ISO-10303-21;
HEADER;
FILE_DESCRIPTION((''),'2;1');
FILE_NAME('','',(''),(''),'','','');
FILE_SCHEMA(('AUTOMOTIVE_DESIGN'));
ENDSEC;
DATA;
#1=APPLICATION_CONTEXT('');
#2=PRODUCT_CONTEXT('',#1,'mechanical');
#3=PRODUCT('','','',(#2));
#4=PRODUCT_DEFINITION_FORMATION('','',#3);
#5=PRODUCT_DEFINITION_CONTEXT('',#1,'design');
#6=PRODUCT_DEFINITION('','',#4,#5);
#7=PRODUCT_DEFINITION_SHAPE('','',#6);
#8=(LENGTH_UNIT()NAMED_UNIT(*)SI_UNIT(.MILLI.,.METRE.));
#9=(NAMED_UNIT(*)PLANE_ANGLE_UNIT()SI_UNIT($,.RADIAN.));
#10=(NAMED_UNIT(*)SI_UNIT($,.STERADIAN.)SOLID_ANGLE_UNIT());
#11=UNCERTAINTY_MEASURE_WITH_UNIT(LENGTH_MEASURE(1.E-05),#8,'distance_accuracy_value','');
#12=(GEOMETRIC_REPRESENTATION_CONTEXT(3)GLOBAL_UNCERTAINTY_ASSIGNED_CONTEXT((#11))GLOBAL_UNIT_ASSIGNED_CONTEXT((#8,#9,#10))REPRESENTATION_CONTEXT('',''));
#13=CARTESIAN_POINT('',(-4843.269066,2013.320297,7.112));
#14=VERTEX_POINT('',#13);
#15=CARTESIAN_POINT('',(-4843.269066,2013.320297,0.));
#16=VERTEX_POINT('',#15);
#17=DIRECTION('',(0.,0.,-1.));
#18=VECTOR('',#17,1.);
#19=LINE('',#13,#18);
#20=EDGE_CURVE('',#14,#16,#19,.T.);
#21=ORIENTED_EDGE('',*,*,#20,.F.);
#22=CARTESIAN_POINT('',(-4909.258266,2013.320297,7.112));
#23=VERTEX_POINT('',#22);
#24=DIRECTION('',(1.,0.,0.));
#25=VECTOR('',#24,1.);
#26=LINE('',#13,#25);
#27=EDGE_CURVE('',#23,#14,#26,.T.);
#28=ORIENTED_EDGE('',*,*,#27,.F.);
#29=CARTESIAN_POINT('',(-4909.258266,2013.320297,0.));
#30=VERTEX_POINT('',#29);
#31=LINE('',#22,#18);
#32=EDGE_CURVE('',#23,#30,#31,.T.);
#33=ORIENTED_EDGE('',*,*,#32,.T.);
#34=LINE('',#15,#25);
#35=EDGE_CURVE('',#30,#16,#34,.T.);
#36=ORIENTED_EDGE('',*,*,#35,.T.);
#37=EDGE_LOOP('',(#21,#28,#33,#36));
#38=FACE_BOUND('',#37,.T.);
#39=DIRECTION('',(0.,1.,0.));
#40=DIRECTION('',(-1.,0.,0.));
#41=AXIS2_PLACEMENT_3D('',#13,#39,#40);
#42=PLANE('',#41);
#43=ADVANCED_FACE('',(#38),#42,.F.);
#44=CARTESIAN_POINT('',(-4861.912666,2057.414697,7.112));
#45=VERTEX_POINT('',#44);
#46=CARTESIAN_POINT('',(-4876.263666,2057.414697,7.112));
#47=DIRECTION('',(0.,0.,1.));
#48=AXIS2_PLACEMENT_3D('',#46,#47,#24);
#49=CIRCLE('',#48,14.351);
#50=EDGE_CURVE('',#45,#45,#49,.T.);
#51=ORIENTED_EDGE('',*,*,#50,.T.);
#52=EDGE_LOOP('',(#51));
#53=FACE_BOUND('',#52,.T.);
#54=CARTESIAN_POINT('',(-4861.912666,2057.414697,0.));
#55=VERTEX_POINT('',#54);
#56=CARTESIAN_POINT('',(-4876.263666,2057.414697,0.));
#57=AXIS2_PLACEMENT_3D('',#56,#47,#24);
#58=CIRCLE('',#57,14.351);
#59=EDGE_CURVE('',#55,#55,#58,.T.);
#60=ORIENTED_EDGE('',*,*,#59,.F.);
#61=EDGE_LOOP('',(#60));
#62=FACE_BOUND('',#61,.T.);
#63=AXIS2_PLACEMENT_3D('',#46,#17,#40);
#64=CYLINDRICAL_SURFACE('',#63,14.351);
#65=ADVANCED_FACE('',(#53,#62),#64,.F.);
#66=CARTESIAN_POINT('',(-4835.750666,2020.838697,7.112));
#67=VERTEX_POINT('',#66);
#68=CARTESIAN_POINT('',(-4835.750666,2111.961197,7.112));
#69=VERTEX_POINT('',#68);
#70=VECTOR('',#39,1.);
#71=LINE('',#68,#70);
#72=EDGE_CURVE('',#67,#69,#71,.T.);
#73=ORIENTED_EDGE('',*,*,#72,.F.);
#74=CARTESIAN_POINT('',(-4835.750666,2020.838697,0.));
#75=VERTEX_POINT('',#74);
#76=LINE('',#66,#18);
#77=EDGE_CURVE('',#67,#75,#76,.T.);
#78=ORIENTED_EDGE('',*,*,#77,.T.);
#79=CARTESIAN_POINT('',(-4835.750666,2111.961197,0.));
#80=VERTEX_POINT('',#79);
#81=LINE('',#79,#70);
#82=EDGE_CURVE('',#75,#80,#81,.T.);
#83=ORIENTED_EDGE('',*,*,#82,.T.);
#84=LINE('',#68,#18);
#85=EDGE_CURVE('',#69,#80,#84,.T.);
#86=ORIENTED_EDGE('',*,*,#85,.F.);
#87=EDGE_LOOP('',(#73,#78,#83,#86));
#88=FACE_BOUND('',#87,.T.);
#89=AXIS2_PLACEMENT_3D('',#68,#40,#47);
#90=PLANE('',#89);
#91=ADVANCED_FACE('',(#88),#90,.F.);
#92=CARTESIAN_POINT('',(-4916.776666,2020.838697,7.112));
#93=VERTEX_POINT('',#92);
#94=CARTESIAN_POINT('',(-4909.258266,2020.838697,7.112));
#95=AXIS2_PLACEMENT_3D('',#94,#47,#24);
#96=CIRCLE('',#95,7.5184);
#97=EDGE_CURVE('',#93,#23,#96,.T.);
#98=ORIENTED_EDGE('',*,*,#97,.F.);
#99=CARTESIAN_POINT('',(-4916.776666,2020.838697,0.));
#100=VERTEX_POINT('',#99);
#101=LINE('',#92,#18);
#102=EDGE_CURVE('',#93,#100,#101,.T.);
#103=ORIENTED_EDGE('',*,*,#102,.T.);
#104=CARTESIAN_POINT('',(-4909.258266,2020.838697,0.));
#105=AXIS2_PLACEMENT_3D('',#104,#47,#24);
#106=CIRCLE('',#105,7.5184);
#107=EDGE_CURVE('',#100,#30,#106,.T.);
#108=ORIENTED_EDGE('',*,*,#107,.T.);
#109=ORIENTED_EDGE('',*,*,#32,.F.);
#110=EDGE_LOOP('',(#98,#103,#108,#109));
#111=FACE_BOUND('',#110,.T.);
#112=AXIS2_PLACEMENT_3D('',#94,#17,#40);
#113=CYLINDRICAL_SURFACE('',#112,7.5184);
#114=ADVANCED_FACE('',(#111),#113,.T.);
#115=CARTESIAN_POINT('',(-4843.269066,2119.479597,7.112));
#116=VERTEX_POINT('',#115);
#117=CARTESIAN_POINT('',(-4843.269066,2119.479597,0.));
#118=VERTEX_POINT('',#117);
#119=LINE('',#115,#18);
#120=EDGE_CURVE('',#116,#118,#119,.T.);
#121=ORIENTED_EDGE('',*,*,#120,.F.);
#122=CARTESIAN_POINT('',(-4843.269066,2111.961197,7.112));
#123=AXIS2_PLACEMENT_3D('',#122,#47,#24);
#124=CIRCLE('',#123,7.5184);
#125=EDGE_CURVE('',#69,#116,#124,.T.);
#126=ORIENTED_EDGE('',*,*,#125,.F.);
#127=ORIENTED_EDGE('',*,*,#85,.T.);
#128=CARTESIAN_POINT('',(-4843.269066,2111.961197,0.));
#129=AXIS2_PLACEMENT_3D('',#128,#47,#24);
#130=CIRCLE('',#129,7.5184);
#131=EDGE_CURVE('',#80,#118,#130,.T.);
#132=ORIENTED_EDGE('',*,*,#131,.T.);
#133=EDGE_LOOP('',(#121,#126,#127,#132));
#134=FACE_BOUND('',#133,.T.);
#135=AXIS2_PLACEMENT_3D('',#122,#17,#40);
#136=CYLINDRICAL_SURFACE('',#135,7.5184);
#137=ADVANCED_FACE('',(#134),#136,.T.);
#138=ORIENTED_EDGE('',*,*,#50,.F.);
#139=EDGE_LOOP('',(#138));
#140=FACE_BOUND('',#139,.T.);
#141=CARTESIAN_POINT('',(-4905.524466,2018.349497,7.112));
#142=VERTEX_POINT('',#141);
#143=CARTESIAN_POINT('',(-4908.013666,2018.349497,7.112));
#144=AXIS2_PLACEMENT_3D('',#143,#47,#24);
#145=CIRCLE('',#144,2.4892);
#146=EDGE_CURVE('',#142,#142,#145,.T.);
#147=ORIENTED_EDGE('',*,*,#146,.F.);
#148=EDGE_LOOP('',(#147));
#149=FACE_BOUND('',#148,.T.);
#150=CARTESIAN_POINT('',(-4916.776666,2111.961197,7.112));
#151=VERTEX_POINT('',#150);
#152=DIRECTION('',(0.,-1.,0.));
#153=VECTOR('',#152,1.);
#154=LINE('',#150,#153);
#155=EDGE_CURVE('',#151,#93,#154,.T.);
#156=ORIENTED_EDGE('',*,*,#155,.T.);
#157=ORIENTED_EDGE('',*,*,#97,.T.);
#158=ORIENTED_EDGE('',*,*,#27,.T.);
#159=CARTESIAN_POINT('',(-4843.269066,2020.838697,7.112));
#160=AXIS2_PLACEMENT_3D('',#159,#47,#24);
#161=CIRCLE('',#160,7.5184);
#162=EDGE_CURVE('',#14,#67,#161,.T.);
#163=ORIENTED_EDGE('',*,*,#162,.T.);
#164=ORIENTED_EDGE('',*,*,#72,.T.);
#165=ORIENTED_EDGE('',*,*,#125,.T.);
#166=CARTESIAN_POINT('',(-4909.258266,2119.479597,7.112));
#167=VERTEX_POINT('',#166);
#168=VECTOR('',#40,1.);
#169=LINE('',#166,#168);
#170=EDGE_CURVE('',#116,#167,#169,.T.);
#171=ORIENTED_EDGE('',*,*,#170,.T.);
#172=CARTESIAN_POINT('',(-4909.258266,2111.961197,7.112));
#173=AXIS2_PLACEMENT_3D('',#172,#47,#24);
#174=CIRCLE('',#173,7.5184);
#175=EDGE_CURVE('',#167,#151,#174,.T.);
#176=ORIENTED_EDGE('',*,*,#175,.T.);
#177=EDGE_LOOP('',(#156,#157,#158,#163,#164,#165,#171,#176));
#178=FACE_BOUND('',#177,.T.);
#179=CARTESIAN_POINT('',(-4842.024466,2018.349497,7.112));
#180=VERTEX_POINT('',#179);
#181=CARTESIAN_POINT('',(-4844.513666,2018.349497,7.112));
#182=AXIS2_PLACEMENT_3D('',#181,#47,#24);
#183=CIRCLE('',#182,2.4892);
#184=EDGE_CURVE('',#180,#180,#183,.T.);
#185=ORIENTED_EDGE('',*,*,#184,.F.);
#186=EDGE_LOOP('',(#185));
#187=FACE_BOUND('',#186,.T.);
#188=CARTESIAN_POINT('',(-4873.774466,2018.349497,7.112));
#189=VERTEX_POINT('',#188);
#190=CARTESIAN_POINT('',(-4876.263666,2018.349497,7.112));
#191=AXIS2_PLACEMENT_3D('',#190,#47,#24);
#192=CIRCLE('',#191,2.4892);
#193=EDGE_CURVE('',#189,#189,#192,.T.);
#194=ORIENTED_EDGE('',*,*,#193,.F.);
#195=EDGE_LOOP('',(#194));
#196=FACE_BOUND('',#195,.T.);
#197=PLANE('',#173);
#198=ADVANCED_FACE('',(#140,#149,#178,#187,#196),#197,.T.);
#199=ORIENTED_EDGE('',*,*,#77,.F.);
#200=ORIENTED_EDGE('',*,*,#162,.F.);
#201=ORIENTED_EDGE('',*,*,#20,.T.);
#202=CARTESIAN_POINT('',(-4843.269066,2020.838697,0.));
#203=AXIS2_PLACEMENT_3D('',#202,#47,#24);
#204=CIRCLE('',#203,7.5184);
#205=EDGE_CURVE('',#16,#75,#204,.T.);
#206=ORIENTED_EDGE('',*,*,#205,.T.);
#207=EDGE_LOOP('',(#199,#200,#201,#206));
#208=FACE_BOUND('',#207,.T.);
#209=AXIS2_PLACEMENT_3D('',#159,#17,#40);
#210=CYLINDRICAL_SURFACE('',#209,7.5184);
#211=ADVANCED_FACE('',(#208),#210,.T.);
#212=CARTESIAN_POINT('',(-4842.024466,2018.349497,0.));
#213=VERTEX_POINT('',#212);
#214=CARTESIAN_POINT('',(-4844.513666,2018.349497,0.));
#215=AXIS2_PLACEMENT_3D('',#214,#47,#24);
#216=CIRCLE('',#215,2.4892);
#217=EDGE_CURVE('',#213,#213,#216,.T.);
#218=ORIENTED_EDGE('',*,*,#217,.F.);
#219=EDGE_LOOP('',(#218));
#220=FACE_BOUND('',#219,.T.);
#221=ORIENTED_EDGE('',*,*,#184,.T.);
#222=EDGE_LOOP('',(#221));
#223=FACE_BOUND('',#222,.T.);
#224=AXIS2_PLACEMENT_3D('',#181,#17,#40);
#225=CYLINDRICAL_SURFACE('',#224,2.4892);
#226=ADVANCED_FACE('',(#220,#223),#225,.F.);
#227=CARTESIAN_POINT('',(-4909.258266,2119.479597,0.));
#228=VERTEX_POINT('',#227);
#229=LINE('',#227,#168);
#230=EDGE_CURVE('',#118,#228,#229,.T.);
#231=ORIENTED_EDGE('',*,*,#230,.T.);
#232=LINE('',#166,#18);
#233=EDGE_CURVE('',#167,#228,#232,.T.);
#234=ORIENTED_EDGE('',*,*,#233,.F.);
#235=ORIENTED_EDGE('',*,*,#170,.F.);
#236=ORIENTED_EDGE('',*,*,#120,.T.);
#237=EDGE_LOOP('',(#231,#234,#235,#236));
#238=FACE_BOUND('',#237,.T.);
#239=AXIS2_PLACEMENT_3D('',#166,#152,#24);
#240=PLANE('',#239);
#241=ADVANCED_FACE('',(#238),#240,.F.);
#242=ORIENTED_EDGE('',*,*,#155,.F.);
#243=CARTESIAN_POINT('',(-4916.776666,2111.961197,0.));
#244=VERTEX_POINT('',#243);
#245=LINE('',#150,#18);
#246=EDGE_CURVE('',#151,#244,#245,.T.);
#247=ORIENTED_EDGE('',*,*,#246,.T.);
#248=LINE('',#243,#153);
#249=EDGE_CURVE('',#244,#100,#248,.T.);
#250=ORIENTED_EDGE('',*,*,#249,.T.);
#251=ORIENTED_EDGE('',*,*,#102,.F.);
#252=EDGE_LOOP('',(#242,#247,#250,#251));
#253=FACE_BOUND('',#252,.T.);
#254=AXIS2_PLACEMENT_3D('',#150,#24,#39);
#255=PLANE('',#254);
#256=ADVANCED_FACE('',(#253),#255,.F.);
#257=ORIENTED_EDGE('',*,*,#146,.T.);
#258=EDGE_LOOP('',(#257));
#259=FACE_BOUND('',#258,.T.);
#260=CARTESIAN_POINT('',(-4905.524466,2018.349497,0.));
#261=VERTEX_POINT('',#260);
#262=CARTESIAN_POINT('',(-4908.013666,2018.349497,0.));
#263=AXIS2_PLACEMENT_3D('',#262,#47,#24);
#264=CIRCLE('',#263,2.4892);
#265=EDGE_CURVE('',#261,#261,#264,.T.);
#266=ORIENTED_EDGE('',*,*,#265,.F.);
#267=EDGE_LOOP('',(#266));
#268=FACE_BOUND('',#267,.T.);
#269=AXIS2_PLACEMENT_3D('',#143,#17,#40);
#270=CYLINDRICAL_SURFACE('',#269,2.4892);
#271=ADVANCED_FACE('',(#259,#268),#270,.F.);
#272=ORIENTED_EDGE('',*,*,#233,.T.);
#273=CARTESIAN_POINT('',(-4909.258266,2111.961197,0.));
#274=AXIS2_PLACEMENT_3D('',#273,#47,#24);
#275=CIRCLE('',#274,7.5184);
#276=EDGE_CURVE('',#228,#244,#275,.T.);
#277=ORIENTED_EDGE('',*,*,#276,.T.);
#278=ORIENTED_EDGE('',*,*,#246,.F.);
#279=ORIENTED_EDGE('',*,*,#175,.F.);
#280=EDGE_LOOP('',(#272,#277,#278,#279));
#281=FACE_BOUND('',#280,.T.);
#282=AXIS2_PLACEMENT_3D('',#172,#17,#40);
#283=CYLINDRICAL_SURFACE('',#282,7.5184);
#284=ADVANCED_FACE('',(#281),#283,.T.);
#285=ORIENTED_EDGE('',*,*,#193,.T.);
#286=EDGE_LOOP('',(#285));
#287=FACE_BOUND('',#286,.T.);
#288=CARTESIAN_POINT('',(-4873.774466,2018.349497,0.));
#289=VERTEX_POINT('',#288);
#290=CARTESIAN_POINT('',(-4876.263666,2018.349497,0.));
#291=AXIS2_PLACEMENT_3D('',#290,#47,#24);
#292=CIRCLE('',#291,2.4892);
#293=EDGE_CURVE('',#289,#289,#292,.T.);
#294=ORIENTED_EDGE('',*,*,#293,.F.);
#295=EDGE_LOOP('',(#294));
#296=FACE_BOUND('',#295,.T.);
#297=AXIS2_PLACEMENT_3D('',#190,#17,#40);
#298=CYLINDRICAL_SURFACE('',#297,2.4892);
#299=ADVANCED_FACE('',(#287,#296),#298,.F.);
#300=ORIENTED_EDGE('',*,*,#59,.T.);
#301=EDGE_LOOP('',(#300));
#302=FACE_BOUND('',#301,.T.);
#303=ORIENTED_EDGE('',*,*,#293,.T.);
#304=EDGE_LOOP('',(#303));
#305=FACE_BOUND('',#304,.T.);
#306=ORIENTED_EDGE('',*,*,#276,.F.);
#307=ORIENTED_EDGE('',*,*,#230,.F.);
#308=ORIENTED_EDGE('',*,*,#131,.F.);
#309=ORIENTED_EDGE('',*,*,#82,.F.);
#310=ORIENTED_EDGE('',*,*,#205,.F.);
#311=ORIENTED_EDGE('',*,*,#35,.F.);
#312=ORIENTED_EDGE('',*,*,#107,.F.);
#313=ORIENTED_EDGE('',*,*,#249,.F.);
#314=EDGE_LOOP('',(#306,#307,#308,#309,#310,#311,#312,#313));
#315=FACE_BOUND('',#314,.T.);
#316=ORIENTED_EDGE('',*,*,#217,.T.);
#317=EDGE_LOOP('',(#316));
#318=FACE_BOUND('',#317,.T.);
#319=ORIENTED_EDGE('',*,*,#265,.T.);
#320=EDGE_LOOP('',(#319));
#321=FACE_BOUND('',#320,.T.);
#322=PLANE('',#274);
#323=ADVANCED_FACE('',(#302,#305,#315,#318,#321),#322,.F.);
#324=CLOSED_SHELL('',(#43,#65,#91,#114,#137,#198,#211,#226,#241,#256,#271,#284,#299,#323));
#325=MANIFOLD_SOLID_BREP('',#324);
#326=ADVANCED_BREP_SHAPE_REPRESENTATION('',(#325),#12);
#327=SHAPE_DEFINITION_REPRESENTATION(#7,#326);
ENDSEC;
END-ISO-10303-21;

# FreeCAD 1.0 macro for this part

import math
import FreeCAD as App
import Part
import Sketcher
from FreeCAD import Vector
Q = App.Units.Quantity

doc = App.newDocument("Part")
body = doc.addObject("PartDesign::Body", "Body")

sketch1 = body.newObject("Sketcher::SketchObject", "Sketch")
sketch1.AttachmentSupport = (doc.getObject("XY_Plane"), [""])
sketch1.MapMode = "FlatFace"
sketch1.addGeometry([
    Part.LineSegment(Vector(-4843.269066, 2119.479597, 0), Vector(-4909.258266, 2119.479597, 0)),
    Part.ArcOfCircle(Part.Circle(Vector(-4909.258266, 2111.961197, 0), Vector(0, 0, 1), 7.5184), math.radians(90), math.radians(180)),
    Part.LineSegment(Vector(-4916.776666, 2111.961197, 0), Vector(-4916.776666, 2020.838697, 0)),
    Part.ArcOfCircle(Part.Circle(Vector(-4909.258266, 2020.838697, 0), Vector(0, 0, 1), 7.5184), math.radians(180), math.radians(270)),
    Part.LineSegment(Vector(-4909.258266, 2013.320297, 0), Vector(-4843.269066, 2013.320297, 0)),
    Part.ArcOfCircle(Part.Circle(Vector(-4843.269066, 2020.838697, 0), Vector(0, 0, 1), 7.5184), math.radians(-90), math.radians(0)),
    Part.LineSegment(Vector(-4835.750666, 2020.838697, 0), Vector(-4835.750666, 2111.961197, 0)),
    Part.ArcOfCircle(Part.Circle(Vector(-4843.269066, 2111.961197, 0), Vector(0, 0, 1), 7.5184), math.radians(0), math.radians(90)),
    Part.Circle(Vector(-4844.513666, 2018.349497, 0), Vector(0, 0, 1), 2.4892),
    Part.Circle(Vector(-4876.263666, 2018.349497, 0), Vector(0, 0, 1), 2.4892),
    Part.Circle(Vector(-4908.013666, 2018.349497, 0), Vector(0, 0, 1), 2.4892),
    Part.Circle(Vector(-4876.263666, 2057.414697, 0), Vector(0, 0, 1), 14.351),
], False)
sketch1.addConstraint([
    Sketcher.Constraint("Tangent", 0, 2, 1, 1),
    Sketcher.Constraint("Tangent", 1, 2, 2, 1),
    Sketcher.Constraint("Tangent", 2, 2, 3, 1),
    Sketcher.Constraint("Tangent", 3, 2, 4, 1),
    Sketcher.Constraint("Tangent", 4, 2, 5, 1),
    Sketcher.Constraint("Tangent", 5, 2, 6, 1),
    Sketcher.Constraint("Tangent", 6, 2, 7, 1),
    Sketcher.Constraint("Tangent", 7, 2, 0, 1),
    Sketcher.Constraint("Horizontal", 0),
    Sketcher.Constraint("Vertical", 2),
    Sketcher.Constraint("Horizontal", 4),
    Sketcher.Constraint("Vertical", 6),
    Sketcher.Constraint("Equal", 1, 3),
    Sketcher.Constraint("Equal", 3, 5),
    Sketcher.Constraint("Equal", 5, 7),
    Sketcher.Constraint("Equal", 8, 9),
    Sketcher.Constraint("Equal", 9, 10),
    Sketcher.Constraint("Horizontal", 8, 3, 9, 3),
    Sketcher.Constraint("Horizontal", 9, 3, 10, 3),
    Sketcher.Constraint("Vertical", 9, 3, 11, 3),
    Sketcher.Constraint("Diameter", 11, Q("1.13 in")),
    Sketcher.Constraint("Diameter", 8, Q("0.196 in")),
    Sketcher.Constraint("Radius", 1, Q("0.296 in")),
    Sketcher.Constraint("DistanceX", 10, 3, 8, 3, Q("2.5 in")),
    Sketcher.Constraint("DistanceX", 0, 2, 0, 1, Q("2.598 in")),
    Sketcher.Constraint("DistanceX", 9, 3, 8, 3, Q("1.25 in")),
    Sketcher.Constraint("DistanceY", 5, 3, 11, 3, Q("1.44 in")),
    Sketcher.Constraint("DistanceY", 2, 2, 2, 1, Q("3.5875 in")),
    Sketcher.Constraint("DistanceX", 8, 3, 5, 3, Q("0.049 in")),
    Sketcher.Constraint("DistanceY", 8, 3, 5, 3, Q("0.098 in")),
    Sketcher.Constraint("DistanceX", 1, 3, -1, 1, 4909.258266),
    Sketcher.Constraint("DistanceY", -1, 1, 1, 3, 2111.961197),
])
pad1 = body.newObject("PartDesign::Pad", "Pad")
pad1.Profile = sketch1
pad1.Length = Q("0.28 in")

doc.recompute()
